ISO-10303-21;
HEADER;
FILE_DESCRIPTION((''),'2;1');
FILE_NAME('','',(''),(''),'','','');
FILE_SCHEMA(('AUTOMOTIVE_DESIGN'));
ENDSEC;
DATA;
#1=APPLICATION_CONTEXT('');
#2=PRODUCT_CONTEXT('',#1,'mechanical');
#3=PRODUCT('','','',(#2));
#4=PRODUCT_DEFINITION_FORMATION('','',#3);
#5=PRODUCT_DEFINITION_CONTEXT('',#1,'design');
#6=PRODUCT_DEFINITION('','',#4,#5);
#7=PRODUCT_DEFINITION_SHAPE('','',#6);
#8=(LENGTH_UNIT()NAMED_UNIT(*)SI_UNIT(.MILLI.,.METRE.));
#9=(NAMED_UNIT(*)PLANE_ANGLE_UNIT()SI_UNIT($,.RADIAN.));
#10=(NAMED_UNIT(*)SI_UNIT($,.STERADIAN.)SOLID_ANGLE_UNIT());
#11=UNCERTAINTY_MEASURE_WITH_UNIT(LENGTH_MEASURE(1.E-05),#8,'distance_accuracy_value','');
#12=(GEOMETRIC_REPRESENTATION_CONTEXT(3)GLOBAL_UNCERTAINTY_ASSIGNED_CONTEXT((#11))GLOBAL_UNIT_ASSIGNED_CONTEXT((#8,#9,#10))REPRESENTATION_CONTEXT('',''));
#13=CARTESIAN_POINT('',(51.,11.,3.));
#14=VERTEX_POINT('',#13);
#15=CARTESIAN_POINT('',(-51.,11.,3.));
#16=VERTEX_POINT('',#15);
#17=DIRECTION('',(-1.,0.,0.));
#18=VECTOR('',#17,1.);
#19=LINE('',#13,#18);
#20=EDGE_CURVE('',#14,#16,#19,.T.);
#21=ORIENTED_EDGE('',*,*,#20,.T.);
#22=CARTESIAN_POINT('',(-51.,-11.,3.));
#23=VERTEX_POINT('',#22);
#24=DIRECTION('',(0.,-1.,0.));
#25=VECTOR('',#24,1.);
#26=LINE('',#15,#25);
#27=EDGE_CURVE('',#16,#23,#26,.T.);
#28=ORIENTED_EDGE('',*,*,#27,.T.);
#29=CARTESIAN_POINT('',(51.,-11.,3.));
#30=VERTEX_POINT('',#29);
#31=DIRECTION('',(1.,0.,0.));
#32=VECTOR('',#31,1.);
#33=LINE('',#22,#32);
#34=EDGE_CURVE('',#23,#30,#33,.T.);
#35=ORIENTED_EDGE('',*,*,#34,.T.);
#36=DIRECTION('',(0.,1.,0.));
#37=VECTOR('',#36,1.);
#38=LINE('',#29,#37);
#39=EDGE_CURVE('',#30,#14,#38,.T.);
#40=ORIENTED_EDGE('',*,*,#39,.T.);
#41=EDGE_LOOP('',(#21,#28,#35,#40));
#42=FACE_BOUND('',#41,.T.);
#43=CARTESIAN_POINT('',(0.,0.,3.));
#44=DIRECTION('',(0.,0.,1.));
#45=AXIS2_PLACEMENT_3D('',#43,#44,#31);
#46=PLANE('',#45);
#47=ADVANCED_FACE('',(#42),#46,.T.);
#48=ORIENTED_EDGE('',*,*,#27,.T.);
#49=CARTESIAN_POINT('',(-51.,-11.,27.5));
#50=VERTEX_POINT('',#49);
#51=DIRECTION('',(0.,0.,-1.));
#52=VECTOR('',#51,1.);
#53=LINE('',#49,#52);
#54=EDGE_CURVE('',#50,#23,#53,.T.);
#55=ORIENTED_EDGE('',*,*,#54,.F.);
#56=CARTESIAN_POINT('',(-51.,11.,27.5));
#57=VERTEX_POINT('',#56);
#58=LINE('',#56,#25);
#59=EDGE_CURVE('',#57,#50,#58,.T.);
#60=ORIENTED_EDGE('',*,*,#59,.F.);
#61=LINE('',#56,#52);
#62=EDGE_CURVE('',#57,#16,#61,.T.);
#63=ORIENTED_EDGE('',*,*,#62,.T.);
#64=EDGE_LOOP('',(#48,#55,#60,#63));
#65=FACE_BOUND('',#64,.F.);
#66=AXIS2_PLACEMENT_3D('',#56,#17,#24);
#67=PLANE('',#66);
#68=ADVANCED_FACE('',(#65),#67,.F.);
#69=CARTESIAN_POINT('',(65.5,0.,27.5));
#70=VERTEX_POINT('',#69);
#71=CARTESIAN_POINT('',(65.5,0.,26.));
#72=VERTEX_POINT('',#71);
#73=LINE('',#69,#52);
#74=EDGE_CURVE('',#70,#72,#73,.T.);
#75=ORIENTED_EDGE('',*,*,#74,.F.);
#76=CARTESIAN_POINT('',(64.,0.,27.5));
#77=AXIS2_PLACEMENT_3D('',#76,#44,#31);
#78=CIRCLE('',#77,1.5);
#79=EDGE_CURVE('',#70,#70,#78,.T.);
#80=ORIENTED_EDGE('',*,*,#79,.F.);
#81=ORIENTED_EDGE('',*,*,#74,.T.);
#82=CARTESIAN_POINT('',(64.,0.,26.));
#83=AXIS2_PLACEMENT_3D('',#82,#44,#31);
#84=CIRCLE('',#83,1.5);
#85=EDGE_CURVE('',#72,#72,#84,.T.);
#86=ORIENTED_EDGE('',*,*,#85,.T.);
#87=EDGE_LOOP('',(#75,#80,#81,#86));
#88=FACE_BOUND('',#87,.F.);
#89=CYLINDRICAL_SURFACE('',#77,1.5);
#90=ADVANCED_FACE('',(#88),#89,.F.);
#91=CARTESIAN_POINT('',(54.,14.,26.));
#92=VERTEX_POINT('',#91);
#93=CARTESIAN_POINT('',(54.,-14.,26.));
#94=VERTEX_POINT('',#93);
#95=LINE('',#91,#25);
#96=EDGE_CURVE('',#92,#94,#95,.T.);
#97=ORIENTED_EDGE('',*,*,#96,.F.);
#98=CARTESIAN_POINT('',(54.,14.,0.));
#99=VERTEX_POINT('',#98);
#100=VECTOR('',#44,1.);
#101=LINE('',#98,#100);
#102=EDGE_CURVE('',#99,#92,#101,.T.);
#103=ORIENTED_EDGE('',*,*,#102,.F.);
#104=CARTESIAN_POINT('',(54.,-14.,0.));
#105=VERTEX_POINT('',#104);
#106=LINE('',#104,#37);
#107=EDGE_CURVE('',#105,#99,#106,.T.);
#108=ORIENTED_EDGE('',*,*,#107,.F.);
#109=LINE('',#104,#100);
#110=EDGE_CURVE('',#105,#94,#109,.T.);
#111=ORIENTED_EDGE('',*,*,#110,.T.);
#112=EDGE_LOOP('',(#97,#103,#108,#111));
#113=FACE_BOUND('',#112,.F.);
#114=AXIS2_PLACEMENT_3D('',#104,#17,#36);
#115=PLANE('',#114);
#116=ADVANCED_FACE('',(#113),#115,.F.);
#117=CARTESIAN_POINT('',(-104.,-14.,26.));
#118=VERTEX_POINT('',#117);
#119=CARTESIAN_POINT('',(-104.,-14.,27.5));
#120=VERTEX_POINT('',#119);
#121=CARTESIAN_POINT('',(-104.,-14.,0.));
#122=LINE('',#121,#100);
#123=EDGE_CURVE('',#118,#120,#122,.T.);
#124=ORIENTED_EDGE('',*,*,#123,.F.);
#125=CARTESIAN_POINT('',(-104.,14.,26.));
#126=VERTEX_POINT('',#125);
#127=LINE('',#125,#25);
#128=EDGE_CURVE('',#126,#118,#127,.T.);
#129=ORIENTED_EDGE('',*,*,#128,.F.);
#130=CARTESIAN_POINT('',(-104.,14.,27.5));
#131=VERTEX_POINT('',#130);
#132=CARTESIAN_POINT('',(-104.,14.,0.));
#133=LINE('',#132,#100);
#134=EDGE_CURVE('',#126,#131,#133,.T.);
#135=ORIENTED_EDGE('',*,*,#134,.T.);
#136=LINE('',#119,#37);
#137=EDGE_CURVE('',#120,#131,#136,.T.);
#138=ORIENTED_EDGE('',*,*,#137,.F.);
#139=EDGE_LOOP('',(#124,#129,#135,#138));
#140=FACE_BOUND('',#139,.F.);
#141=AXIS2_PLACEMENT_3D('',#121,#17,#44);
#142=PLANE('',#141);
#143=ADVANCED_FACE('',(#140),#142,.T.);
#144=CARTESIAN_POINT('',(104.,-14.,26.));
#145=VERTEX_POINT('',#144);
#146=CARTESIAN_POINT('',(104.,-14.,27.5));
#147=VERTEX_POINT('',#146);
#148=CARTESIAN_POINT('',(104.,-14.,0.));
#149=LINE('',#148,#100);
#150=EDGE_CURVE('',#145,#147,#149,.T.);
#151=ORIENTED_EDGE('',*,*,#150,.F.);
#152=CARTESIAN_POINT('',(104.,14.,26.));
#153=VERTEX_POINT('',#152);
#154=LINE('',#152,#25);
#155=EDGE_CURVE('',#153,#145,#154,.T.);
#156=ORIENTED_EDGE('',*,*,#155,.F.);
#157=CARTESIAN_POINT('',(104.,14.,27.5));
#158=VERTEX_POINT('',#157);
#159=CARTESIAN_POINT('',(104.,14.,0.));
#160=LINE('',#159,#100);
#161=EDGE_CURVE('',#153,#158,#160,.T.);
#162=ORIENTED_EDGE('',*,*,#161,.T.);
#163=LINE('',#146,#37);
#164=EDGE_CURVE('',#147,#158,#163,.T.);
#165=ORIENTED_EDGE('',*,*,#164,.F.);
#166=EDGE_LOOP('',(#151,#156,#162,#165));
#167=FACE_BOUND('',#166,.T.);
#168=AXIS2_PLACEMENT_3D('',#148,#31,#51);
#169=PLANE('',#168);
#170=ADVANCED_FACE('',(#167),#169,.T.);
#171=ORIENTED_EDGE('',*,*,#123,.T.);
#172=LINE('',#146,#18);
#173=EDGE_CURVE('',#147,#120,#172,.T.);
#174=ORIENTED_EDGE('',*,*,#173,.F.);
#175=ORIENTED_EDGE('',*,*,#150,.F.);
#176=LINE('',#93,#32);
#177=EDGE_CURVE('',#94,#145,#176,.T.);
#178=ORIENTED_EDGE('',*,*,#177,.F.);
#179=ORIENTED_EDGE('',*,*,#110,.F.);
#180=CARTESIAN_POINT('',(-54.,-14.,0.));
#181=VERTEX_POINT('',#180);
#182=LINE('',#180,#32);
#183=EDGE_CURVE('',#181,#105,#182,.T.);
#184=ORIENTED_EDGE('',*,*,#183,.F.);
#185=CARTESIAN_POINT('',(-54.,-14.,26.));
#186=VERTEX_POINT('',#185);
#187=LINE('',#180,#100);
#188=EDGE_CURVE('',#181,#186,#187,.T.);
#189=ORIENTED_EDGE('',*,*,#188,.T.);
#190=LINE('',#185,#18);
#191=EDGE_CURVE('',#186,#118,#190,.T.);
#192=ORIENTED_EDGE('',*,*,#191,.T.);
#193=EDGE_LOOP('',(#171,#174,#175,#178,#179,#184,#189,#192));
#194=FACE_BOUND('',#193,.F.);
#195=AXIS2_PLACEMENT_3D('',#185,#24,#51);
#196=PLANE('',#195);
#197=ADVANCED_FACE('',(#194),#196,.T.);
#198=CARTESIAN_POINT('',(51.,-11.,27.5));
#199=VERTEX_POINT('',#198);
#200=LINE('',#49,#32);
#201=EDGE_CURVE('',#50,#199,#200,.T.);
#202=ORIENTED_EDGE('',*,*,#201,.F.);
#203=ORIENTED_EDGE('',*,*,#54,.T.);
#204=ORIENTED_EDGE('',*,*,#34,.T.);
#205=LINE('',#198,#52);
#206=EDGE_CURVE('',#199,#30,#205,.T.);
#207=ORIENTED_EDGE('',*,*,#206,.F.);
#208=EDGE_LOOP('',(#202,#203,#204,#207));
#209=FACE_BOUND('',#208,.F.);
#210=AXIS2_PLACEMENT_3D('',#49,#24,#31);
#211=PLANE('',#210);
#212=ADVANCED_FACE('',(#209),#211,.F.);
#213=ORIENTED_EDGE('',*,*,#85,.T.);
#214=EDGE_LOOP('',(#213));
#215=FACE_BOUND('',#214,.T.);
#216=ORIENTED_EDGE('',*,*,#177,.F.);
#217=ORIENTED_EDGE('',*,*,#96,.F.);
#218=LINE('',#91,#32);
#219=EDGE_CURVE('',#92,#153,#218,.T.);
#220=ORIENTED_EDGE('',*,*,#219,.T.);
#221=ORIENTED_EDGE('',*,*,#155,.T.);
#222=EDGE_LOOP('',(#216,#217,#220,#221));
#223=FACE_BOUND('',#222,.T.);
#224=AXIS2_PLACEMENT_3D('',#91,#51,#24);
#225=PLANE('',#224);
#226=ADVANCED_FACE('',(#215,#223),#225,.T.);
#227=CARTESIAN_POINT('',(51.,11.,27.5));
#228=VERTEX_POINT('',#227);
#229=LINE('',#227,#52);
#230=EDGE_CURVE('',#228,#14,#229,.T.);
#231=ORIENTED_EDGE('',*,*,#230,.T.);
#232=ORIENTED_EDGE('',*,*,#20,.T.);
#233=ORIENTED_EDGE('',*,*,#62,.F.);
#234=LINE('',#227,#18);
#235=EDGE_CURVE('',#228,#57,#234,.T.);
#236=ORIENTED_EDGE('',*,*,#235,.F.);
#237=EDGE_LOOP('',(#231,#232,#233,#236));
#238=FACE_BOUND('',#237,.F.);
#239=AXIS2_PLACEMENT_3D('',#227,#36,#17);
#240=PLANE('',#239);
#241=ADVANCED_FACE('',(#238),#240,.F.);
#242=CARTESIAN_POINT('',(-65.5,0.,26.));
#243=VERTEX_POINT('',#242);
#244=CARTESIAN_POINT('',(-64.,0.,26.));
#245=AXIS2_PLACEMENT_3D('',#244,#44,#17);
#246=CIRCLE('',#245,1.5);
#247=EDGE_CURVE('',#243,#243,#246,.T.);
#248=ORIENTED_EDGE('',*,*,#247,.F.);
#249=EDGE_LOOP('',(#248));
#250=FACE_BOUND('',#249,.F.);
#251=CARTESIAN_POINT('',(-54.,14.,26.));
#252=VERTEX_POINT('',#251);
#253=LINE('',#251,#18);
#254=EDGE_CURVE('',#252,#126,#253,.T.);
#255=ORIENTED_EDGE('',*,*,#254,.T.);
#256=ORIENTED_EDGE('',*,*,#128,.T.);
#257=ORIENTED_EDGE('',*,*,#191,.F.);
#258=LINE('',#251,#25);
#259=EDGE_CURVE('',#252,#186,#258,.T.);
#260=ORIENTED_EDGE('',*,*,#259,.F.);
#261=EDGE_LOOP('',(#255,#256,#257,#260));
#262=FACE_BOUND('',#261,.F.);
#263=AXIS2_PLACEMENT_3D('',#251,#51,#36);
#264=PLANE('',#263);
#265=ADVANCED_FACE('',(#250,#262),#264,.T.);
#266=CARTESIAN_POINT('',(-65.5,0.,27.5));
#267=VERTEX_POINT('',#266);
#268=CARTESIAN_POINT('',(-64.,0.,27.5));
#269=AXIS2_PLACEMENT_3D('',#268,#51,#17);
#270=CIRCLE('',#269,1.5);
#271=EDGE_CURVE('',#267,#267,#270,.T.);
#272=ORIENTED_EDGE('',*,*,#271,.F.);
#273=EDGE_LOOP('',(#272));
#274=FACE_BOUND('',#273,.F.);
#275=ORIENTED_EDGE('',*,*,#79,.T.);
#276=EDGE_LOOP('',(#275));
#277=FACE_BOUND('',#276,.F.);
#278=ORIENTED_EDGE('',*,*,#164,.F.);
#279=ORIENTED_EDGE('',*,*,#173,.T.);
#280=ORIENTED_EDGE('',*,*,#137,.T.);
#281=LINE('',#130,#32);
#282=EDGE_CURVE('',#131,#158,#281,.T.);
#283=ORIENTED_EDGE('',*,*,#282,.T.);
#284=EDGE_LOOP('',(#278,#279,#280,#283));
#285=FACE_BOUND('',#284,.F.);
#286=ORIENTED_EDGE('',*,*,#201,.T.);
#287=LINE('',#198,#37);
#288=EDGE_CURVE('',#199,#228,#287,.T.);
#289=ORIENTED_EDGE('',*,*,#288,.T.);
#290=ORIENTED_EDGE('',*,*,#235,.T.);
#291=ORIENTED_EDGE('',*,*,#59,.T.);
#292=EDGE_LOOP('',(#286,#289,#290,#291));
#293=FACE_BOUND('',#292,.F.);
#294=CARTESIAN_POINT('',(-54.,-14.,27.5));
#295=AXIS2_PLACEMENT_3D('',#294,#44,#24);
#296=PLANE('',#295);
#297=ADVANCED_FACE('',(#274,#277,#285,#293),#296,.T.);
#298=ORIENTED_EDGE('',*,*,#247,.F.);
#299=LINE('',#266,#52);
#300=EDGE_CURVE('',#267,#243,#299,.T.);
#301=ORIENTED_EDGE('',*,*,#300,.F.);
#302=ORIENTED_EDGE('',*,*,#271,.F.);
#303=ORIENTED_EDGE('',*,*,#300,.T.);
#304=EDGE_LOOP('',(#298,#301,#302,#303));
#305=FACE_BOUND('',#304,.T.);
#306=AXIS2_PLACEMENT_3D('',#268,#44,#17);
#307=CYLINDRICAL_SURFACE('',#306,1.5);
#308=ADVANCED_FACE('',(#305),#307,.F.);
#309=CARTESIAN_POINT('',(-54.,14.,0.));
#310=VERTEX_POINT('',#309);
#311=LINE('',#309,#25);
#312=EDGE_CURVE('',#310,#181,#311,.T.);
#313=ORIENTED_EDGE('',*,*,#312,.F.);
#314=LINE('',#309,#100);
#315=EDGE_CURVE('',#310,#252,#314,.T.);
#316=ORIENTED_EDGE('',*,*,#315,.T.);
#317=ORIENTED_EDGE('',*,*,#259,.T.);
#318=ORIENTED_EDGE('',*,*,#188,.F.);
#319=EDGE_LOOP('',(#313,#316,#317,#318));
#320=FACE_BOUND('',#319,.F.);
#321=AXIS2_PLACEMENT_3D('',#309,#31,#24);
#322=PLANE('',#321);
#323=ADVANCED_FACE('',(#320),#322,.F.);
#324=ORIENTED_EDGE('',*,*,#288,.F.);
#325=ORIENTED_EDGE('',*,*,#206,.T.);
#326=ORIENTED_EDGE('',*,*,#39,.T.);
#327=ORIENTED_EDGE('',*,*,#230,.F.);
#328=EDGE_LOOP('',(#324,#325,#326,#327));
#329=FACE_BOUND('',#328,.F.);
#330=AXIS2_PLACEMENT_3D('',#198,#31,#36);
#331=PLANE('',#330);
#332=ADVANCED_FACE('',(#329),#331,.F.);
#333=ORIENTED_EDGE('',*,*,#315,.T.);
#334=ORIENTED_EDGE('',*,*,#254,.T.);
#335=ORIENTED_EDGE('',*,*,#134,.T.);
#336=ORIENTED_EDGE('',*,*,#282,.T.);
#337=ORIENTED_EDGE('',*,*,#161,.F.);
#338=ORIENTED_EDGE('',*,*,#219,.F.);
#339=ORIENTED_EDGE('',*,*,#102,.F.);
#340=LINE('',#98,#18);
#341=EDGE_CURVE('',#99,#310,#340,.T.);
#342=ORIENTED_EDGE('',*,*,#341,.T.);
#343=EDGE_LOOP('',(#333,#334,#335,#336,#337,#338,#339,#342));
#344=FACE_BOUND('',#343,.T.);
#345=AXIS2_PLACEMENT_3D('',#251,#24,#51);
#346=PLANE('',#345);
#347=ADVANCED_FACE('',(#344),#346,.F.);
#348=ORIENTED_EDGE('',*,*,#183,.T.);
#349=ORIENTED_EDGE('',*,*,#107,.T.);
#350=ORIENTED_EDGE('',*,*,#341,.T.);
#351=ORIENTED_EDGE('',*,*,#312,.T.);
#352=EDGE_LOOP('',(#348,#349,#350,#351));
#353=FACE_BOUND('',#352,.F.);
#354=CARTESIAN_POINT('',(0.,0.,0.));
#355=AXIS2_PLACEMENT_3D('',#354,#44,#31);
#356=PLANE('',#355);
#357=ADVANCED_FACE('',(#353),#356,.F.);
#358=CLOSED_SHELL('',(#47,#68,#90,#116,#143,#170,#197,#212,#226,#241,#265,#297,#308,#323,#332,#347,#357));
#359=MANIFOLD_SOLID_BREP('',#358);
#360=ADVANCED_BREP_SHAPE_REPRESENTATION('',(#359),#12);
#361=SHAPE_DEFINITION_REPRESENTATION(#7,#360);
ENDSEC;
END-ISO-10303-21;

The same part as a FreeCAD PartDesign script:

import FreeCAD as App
import Part
import Sketcher
from FreeCAD import Vector

doc = App.newDocument("Part")
body = doc.addObject("PartDesign::Body", "Body")

sketch1 = body.newObject("Sketcher::SketchObject", "Sketch")
sketch1.AttachmentSupport = (doc.getObject("XY_Plane"), [""])
sketch1.MapMode = "FlatFace"
sketch1.addGeometry([
    Part.LineSegment(Vector(-54, 14, 0), Vector(-54, -14, 0)),
    Part.LineSegment(Vector(-54, -14, 0), Vector(54, -14, 0)),
    Part.LineSegment(Vector(54, -14, 0), Vector(54, 14, 0)),
    Part.LineSegment(Vector(54, 14, 0), Vector(-54, 14, 0)),
], False)
sketch1.addConstraint([
    Sketcher.Constraint("Coincident", 0, 2, 1, 1),
    Sketcher.Constraint("Coincident", 1, 2, 2, 1),
    Sketcher.Constraint("Coincident", 2, 2, 3, 1),
    Sketcher.Constraint("Coincident", 3, 2, 0, 1),
    Sketcher.Constraint("Vertical", 0),
    Sketcher.Constraint("Horizontal", 1),
    Sketcher.Constraint("Vertical", 2),
    Sketcher.Constraint("Horizontal", 3),
    Sketcher.Constraint("Symmetric", 0, 2, 2, 2, -1, 1),
    Sketcher.Constraint("DistanceX", 1, 1, 1, 2, 108.0),
    Sketcher.Constraint("DistanceY", 0, 2, 0, 1, 28.0),
])
pad1 = body.newObject("PartDesign::Pad", "Pad")
pad1.Profile = sketch1
pad1.Length = 27.5

sketch2 = body.newObject("Sketcher::SketchObject", "Sketch001")
sketch2.AttachmentSupport = (doc.getObject("XY_Plane"), [""])
sketch2.MapMode = "FlatFace"
sketch2.AttachmentOffset = App.Placement(Vector(0, 0, 27.5), App.Rotation())
sketch2.addGeometry([
    Part.LineSegment(Vector(-51, 11, 0), Vector(-51, -11, 0)),
    Part.LineSegment(Vector(-51, -11, 0), Vector(51, -11, 0)),
    Part.LineSegment(Vector(51, -11, 0), Vector(51, 11, 0)),
    Part.LineSegment(Vector(51, 11, 0), Vector(-51, 11, 0)),
], False)
sketch2.addConstraint([
    Sketcher.Constraint("Coincident", 0, 2, 1, 1),
    Sketcher.Constraint("Coincident", 1, 2, 2, 1),
    Sketcher.Constraint("Coincident", 2, 2, 3, 1),
    Sketcher.Constraint("Coincident", 3, 2, 0, 1),
    Sketcher.Constraint("Vertical", 0),
    Sketcher.Constraint("Horizontal", 1),
    Sketcher.Constraint("Vertical", 2),
    Sketcher.Constraint("Horizontal", 3),
    Sketcher.Constraint("Symmetric", 0, 2, 2, 2, -1, 1),
    Sketcher.Constraint("DistanceX", 1, 1, 1, 2, 102.0),
    Sketcher.Constraint("DistanceY", 0, 2, 0, 1, 22.0),
])
pocket1 = body.newObject("PartDesign::Pocket", "Pocket")
pocket1.Profile = sketch2
pocket1.Length = 24.5

sketch3 = body.newObject("Sketcher::SketchObject", "Sketch002")
sketch3.AttachmentSupport = (doc.getObject("YZ_Plane"), [""])
sketch3.MapMode = "FlatFace"
sketch3.AttachmentOffset = App.Placement(Vector(0, 0, 54), App.Rotation())
sketch3.addGeometry([
    Part.LineSegment(Vector(-14, 26, 0), Vector(14, 26, 0)),
    Part.LineSegment(Vector(14, 26, 0), Vector(14, 27.5, 0)),
    Part.LineSegment(Vector(14, 27.5, 0), Vector(-14, 27.5, 0)),
    Part.LineSegment(Vector(-14, 27.5, 0), Vector(-14, 26, 0)),
], False)
sketch3.addConstraint([
    Sketcher.Constraint("Coincident", 0, 2, 1, 1),
    Sketcher.Constraint("Coincident", 1, 2, 2, 1),
    Sketcher.Constraint("Coincident", 2, 2, 3, 1),
    Sketcher.Constraint("Coincident", 3, 2, 0, 1),
    Sketcher.Constraint("Horizontal", 0),
    Sketcher.Constraint("Vertical", 1),
    Sketcher.Constraint("Horizontal", 2),
    Sketcher.Constraint("Vertical", 3),
    Sketcher.Constraint("DistanceY", 1, 1, 1, 2, 1.5),
    Sketcher.Constraint("DistanceX", 0, 1, 0, 2, 28.0),
    Sketcher.Constraint("DistanceX", -1, 1, 0, 2, 14.0),
    Sketcher.Constraint("DistanceY", -1, 1, 0, 2, 26.0),
])
pad2 = body.newObject("PartDesign::Pad", "Pad001")
pad2.Profile = sketch3
pad2.Length = 50

sketch4 = body.newObject("Sketcher::SketchObject", "Sketch003")
sketch4.AttachmentSupport = (doc.getObject("XY_Plane"), [""])
sketch4.MapMode = "FlatFace"
sketch4.AttachmentOffset = App.Placement(Vector(0, 0, 27.5), App.Rotation())
sketch4.addGeometry(Part.Circle(Vector(64, 0, 0), Vector(0, 0, 1), 1.5), False)
sketch4.addConstraint([
    Sketcher.Constraint("PointOnObject", 0, 3, -1),
    Sketcher.Constraint("Diameter", 0, 3.0),
    Sketcher.Constraint("DistanceX", -1, 1, 0, 3, 64.0),
])
pocket2 = body.newObject("PartDesign::Pocket", "Pocket001")
pocket2.Profile = sketch4
pocket2.Length = 50
doc.recompute()

mirrored = body.newObject("PartDesign::Mirrored", "Mirrored")
mirrored.Originals = [pad2, pocket2]
mirrored.MirrorPlane = (doc.getObject("YZ_Plane"), [""])
body.Tip = mirrored

doc.recompute()
